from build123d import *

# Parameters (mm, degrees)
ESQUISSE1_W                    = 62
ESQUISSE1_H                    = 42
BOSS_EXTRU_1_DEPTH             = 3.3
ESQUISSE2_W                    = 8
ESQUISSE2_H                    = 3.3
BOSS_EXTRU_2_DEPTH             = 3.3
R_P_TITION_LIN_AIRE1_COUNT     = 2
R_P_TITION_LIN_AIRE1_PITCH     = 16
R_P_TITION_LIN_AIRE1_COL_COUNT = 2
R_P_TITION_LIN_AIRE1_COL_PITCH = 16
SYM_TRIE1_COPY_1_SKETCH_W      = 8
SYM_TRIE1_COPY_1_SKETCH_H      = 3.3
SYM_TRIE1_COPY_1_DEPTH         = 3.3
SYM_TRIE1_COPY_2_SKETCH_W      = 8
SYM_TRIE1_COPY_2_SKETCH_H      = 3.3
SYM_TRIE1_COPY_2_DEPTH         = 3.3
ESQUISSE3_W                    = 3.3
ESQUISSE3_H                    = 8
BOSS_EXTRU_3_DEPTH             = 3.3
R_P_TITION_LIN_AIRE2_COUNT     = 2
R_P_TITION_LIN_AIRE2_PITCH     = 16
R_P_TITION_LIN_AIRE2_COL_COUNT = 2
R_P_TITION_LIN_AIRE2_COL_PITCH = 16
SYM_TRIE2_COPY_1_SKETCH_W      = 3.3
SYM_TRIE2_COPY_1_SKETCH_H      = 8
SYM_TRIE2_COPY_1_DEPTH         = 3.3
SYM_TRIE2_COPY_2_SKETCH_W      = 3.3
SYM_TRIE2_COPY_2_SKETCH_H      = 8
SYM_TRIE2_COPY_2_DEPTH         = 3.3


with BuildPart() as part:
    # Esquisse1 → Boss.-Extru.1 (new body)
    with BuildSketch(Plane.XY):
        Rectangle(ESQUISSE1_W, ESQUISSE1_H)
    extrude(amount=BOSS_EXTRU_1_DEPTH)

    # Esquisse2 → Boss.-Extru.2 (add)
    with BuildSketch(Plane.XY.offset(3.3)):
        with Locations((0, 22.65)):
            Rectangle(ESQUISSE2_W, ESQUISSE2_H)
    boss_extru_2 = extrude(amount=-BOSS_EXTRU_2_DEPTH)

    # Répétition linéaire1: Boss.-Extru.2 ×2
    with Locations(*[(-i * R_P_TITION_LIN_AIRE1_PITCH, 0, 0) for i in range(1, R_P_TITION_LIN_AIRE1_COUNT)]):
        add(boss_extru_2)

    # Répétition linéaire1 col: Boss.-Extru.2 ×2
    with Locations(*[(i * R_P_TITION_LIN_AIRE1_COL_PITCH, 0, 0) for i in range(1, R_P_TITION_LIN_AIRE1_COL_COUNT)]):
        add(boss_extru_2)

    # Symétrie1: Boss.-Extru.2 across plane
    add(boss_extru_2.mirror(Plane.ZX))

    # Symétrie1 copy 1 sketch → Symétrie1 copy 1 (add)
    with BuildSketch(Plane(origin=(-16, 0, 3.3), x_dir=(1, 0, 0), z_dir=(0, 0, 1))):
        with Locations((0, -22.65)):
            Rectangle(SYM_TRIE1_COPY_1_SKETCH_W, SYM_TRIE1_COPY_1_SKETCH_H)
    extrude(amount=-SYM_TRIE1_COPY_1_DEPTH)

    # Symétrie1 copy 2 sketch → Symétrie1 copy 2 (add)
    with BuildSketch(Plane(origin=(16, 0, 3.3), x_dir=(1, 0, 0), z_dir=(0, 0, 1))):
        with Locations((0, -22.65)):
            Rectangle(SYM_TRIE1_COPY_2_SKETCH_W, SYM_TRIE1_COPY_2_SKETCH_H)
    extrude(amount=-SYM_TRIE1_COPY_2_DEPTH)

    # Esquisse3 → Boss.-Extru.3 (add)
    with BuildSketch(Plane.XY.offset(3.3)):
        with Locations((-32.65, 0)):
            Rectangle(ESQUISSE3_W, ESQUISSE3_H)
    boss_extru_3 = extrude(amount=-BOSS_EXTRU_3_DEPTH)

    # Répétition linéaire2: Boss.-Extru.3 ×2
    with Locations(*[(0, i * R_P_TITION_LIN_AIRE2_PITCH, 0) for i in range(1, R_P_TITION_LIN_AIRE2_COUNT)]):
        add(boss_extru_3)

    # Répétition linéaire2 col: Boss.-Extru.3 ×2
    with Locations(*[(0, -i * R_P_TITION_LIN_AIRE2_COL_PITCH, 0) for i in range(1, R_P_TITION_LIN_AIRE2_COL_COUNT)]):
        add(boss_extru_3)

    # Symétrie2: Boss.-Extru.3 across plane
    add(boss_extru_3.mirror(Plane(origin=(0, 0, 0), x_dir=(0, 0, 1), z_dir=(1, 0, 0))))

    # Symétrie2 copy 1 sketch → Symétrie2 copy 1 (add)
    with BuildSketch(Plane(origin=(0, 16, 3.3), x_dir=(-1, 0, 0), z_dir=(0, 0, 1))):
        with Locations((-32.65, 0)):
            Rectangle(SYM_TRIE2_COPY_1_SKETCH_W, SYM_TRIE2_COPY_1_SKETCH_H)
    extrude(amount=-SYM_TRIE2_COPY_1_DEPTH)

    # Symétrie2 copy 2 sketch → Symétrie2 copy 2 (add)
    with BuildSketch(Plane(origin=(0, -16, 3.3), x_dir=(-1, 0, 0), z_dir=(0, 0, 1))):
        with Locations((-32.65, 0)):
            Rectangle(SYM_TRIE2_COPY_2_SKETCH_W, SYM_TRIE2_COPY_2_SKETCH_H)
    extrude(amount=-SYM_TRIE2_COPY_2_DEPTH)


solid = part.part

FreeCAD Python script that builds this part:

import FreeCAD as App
import Part
import Sketcher
from FreeCAD import Vector

doc = App.newDocument("Part")
params = doc.addObject("Spreadsheet::Sheet", "Params")
for row, (alias, value) in enumerate([
    ("sketch1_width", "62 mm"),
    ("sketch1_height", "42 mm"),
    ("pad1_length", "3.3 mm"),
    ("sketch2_width", "8 mm"),
    ("sketch2_height", "3.3 mm"),
    ("pad2_length", "3.3 mm"),
    ("linearpattern_pitch", "16 mm"),
    ("linearpattern2_pitch", "16 mm"),
    ("sketch3_width", "8 mm"),
    ("sketch3_height", "3.3 mm"),
    ("pad3_length", "3.3 mm"),
    ("sketch4_width", "8 mm"),
    ("sketch4_height", "3.3 mm"),
    ("pad4_length", "3.3 mm"),
    ("sketch5_height", "8 mm"),
    ("sketch5_width", "3.3 mm"),
    ("pad5_length", "3.3 mm"),
    ("linearpattern3_pitch", "16 mm"),
    ("linearpattern4_pitch", "16 mm"),
    ("sketch6_height", "8 mm"),
    ("sketch6_width", "3.3 mm"),
    ("pad6_length", "3.3 mm"),
    ("sketch7_height", "8 mm"),
    ("sketch7_width", "3.3 mm"),
    ("pad7_length", "3.3 mm"),
], start=1):
    params.set(f"A{row}", alias)
    params.set(f"B{row}", "=" + value)
    params.setAlias(f"B{row}", alias)

body = doc.addObject("PartDesign::Body", "Body")

# Sketch on XY plane
sketch1 = body.newObject("Sketcher::SketchObject", "Sketch")
sketch1.AttachmentSupport = (doc.getObject("XY_Plane"), [""])
sketch1.MapMode = "FlatFace"
sketch1.addGeometry([
    Part.LineSegment(Vector(-31, 21, 0), Vector(-31, -21, 0)),
    Part.LineSegment(Vector(-31, -21, 0), Vector(31, -21, 0)),
    Part.LineSegment(Vector(31, -21, 0), Vector(31, 21, 0)),
    Part.LineSegment(Vector(31, 21, 0), Vector(-31, 21, 0)),
], False)
sketch1.addConstraint([
    Sketcher.Constraint("Coincident", 0, 2, 1, 1),
    Sketcher.Constraint("Coincident", 1, 2, 2, 1),
    Sketcher.Constraint("Coincident", 2, 2, 3, 1),
    Sketcher.Constraint("Coincident", 3, 2, 0, 1),
    Sketcher.Constraint("Vertical", 0),
    Sketcher.Constraint("Horizontal", 1),
    Sketcher.Constraint("Vertical", 2),
    Sketcher.Constraint("Horizontal", 3),
    Sketcher.Constraint("Symmetric", 0, 2, 2, 2, -1, 1),
    Sketcher.Constraint("DistanceX", 1, 1, 1, 2, 62.0),
    Sketcher.Constraint("DistanceY", 0, 2, 0, 1, 42.0),
])
sketch1.setExpression("Constraints[9]", "Params.sketch1_width")
sketch1.setExpression("Constraints[10]", "Params.sketch1_height")
pad1 = body.newObject("PartDesign::Pad", "Pad")
pad1.Profile = sketch1
pad1.setExpression("Length", "Params.pad1_length")

# Sketch on XY plane
sketch2 = body.newObject("Sketcher::SketchObject", "Sketch001")
sketch2.AttachmentSupport = (doc.getObject("XY_Plane"), [""])
sketch2.MapMode = "FlatFace"
sketch2.AttachmentOffset = App.Placement(Vector(0, 0, 3.3), App.Rotation())
sketch2.addGeometry([
    Part.LineSegment(Vector(-4, 24.3, 0), Vector(-4, 21, 0)),
    Part.LineSegment(Vector(-4, 21, 0), Vector(4, 21, 0)),
    Part.LineSegment(Vector(4, 21, 0), Vector(4, 24.3, 0)),
    Part.LineSegment(Vector(4, 24.3, 0), Vector(-4, 24.3, 0)),
], False)
sketch2.addConstraint([
    Sketcher.Constraint("Coincident", 0, 2, 1, 1),
    Sketcher.Constraint("Coincident", 1, 2, 2, 1),
    Sketcher.Constraint("Coincident", 2, 2, 3, 1),
    Sketcher.Constraint("Coincident", 3, 2, 0, 1),
    Sketcher.Constraint("Vertical", 0),
    Sketcher.Constraint("Horizontal", 1),
    Sketcher.Constraint("Vertical", 2),
    Sketcher.Constraint("Horizontal", 3),
    Sketcher.Constraint("DistanceX", 1, 1, 1, 2, 8.0),
    Sketcher.Constraint("DistanceY", 0, 2, 0, 1, 3.3),
    Sketcher.Constraint("DistanceX", 0, 2, -1, 1, 4.0),
    Sketcher.Constraint("DistanceY", -1, 1, 0, 2, 21.0),
])
sketch2.setExpression("Constraints[8]", "Params.sketch2_width")
sketch2.setExpression("Constraints[9]", "Params.sketch2_height")
pad2 = body.newObject("PartDesign::Pad", "Pad001")
pad2.Profile = sketch2
pad2.setExpression("Length", "Params.pad2_length")
pad2.Reversed = True
doc.recompute()

linearpattern = body.newObject("PartDesign::LinearPattern", "LinearPattern")
linearpattern.Originals = [pad2]
linearpattern.Direction = (doc.getObject("X_Axis"), [""])
linearpattern.Mode = "offset"
linearpattern.setExpression("Offset", "Params.linearpattern_pitch")
linearpattern.Occurrences = 2
linearpattern.Reversed = True
body.Tip = linearpattern
doc.recompute()

linearpattern2 = body.newObject("PartDesign::LinearPattern", "LinearPattern001")
linearpattern2.Originals = [pad2]
linearpattern2.Direction = (doc.getObject("X_Axis"), [""])
linearpattern2.Mode = "offset"
linearpattern2.setExpression("Offset", "Params.linearpattern2_pitch")
linearpattern2.Occurrences = 2
body.Tip = linearpattern2
doc.recompute()

mirrored = body.newObject("PartDesign::Mirrored", "Mirrored")
mirrored.Originals = [pad2]
mirrored.MirrorPlane = (doc.getObject("XZ_Plane"), [""])
body.Tip = mirrored

# Sketch on XY plane
sketch3 = body.newObject("Sketcher::SketchObject", "Sketch002")
sketch3.AttachmentSupport = (doc.getObject("XY_Plane"), [""])
sketch3.MapMode = "FlatFace"
sketch3.AttachmentOffset = App.Placement(Vector(0, 0, 3.3), App.Rotation())
sketch3.addGeometry([
    Part.LineSegment(Vector(-20, -21, 0), Vector(-20, -24.3, 0)),
    Part.LineSegment(Vector(-20, -24.3, 0), Vector(-12, -24.3, 0)),
    Part.LineSegment(Vector(-12, -24.3, 0), Vector(-12, -21, 0)),
    Part.LineSegment(Vector(-12, -21, 0), Vector(-20, -21, 0)),
], False)
sketch3.addConstraint([
    Sketcher.Constraint("Coincident", 0, 2, 1, 1),
    Sketcher.Constraint("Coincident", 1, 2, 2, 1),
    Sketcher.Constraint("Coincident", 2, 2, 3, 1),
    Sketcher.Constraint("Coincident", 3, 2, 0, 1),
    Sketcher.Constraint("Vertical", 0),
    Sketcher.Constraint("Horizontal", 1),
    Sketcher.Constraint("Vertical", 2),
    Sketcher.Constraint("Horizontal", 3),
    Sketcher.Constraint("DistanceX", 1, 1, 1, 2, 8.0),
    Sketcher.Constraint("DistanceY", 0, 2, 0, 1, 3.3),
    Sketcher.Constraint("DistanceX", 0, 2, -1, 1, 20.0),
    Sketcher.Constraint("DistanceY", 2, 2, -1, 1, 21.0),
])
sketch3.setExpression("Constraints[8]", "Params.sketch3_width")
sketch3.setExpression("Constraints[9]", "Params.sketch3_height")
pad3 = body.newObject("PartDesign::Pad", "Pad002")
pad3.Profile = sketch3
pad3.setExpression("Length", "Params.pad3_length")
pad3.Reversed = True

# Sketch on XY plane
sketch4 = body.newObject("Sketcher::SketchObject", "Sketch003")
sketch4.AttachmentSupport = (doc.getObject("XY_Plane"), [""])
sketch4.MapMode = "FlatFace"
sketch4.AttachmentOffset = App.Placement(Vector(0, 0, 3.3), App.Rotation())
sketch4.addGeometry([
    Part.LineSegment(Vector(12, -21, 0), Vector(12, -24.3, 0)),
    Part.LineSegment(Vector(12, -24.3, 0), Vector(20, -24.3, 0)),
    Part.LineSegment(Vector(20, -24.3, 0), Vector(20, -21, 0)),
    Part.LineSegment(Vector(20, -21, 0), Vector(12, -21, 0)),
], False)
sketch4.addConstraint([
    Sketcher.Constraint("Coincident", 0, 2, 1, 1),
    Sketcher.Constraint("Coincident", 1, 2, 2, 1),
    Sketcher.Constraint("Coincident", 2, 2, 3, 1),
    Sketcher.Constraint("Coincident", 3, 2, 0, 1),
    Sketcher.Constraint("Vertical", 0),
    Sketcher.Constraint("Horizontal", 1),
    Sketcher.Constraint("Vertical", 2),
    Sketcher.Constraint("Horizontal", 3),
    Sketcher.Constraint("DistanceX", 1, 1, 1, 2, 8.0),
    Sketcher.Constraint("DistanceY", 0, 2, 0, 1, 3.3),
    Sketcher.Constraint("DistanceX", -1, 1, 0, 2, 12.0),
    Sketcher.Constraint("DistanceY", 2, 2, -1, 1, 21.0),
])
sketch4.setExpression("Constraints[8]", "Params.sketch4_width")
sketch4.setExpression("Constraints[9]", "Params.sketch4_height")
pad4 = body.newObject("PartDesign::Pad", "Pad003")
pad4.Profile = sketch4
pad4.setExpression("Length", "Params.pad4_length")
pad4.Reversed = True

# Sketch on XY plane
sketch5 = body.newObject("Sketcher::SketchObject", "Sketch004")
sketch5.AttachmentSupport = (doc.getObject("XY_Plane"), [""])
sketch5.MapMode = "FlatFace"
sketch5.AttachmentOffset = App.Placement(Vector(0, 0, 3.3), App.Rotation())
sketch5.addGeometry([
    Part.LineSegment(Vector(-34.3, 4, 0), Vector(-34.3, -4, 0)),
    Part.LineSegment(Vector(-34.3, -4, 0), Vector(-31, -4, 0)),
    Part.LineSegment(Vector(-31, -4, 0), Vector(-31, 4, 0)),
    Part.LineSegment(Vector(-31, 4, 0), Vector(-34.3, 4, 0)),
], False)
sketch5.addConstraint([
    Sketcher.Constraint("Coincident", 0, 2, 1, 1),
    Sketcher.Constraint("Coincident", 1, 2, 2, 1),
    Sketcher.Constraint("Coincident", 2, 2, 3, 1),
    Sketcher.Constraint("Coincident", 3, 2, 0, 1),
    Sketcher.Constraint("Vertical", 0),
    Sketcher.Constraint("Horizontal", 1),
    Sketcher.Constraint("Vertical", 2),
    Sketcher.Constraint("Horizontal", 3),
    Sketcher.Constraint("DistanceY", 0, 2, 0, 1, 8.0),
    Sketcher.Constraint("DistanceX", 1, 1, 1, 2, 3.3),
    Sketcher.Constraint("DistanceY", 0, 2, -1, 1, 4.0),
    Sketcher.Constraint("DistanceX", 1, 2, -1, 1, 31.0),
])
sketch5.setExpression("Constraints[8]", "Params.sketch5_height")
sketch5.setExpression("Constraints[9]", "Params.sketch5_width")
pad5 = body.newObject("PartDesign::Pad", "Pad004")
pad5.Profile = sketch5
pad5.setExpression("Length", "Params.pad5_length")
pad5.Reversed = True
doc.recompute()

linearpattern3 = body.newObject("PartDesign::LinearPattern", "LinearPattern002")
linearpattern3.Originals = [pad5]
linearpattern3.Direction = (doc.getObject("Y_Axis"), [""])
linearpattern3.Mode = "offset"
linearpattern3.setExpression("Offset", "Params.linearpattern3_pitch")
linearpattern3.Occurrences = 2
body.Tip = linearpattern3
doc.recompute()

linearpattern4 = body.newObject("PartDesign::LinearPattern", "LinearPattern003")
linearpattern4.Originals = [pad5]
linearpattern4.Direction = (doc.getObject("Y_Axis"), [""])
linearpattern4.Mode = "offset"
linearpattern4.setExpression("Offset", "Params.linearpattern4_pitch")
linearpattern4.Occurrences = 2
linearpattern4.Reversed = True
body.Tip = linearpattern4
doc.recompute()

mirrored2 = body.newObject("PartDesign::Mirrored", "Mirrored001")
mirrored2.Originals = [pad5]
mirrored2.MirrorPlane = (doc.getObject("YZ_Plane"), [""])
body.Tip = mirrored2

# Sketch on XY plane
sketch6 = body.newObject("Sketcher::SketchObject", "Sketch005")
sketch6.AttachmentSupport = (doc.getObject("XY_Plane"), [""])
sketch6.MapMode = "FlatFace"
sketch6.AttachmentOffset = App.Placement(Vector(0, 0, 3.3), App.Rotation())
sketch6.addGeometry([
    Part.LineSegment(Vector(34.3, 12, 0), Vector(34.3, 20, 0)),
    Part.LineSegment(Vector(34.3, 20, 0), Vector(31, 20, 0)),
    Part.LineSegment(Vector(31, 20, 0), Vector(31, 12, 0)),
    Part.LineSegment(Vector(31, 12, 0), Vector(34.3, 12, 0)),
], False)
sketch6.addConstraint([
    Sketcher.Constraint("Coincident", 0, 2, 1, 1),
    Sketcher.Constraint("Coincident", 1, 2, 2, 1),
    Sketcher.Constraint("Coincident", 2, 2, 3, 1),
    Sketcher.Constraint("Coincident", 3, 2, 0, 1),
    Sketcher.Constraint("Vertical", 0),
    Sketcher.Constraint("Horizontal", 1),
    Sketcher.Constraint("Vertical", 2),
    Sketcher.Constraint("Horizontal", 3),
    Sketcher.Constraint("DistanceY", 0, 1, 0, 2, 8.0),
    Sketcher.Constraint("DistanceX", 1, 2, 1, 1, 3.3),
    Sketcher.Constraint("DistanceY", -1, 1, 0, 2, 20.0),
    Sketcher.Constraint("DistanceX", -1, 1, 1, 2, 31.0),
])
sketch6.setExpression("Constraints[8]", "Params.sketch6_height")
sketch6.setExpression("Constraints[9]", "Params.sketch6_width")
pad6 = body.newObject("PartDesign::Pad", "Pad005")
pad6.Profile = sketch6
pad6.setExpression("Length", "Params.pad6_length")
pad6.Reversed = True

# Sketch on XY plane
sketch7 = body.newObject("Sketcher::SketchObject", "Sketch006")
sketch7.AttachmentSupport = (doc.getObject("XY_Plane"), [""])
sketch7.MapMode = "FlatFace"
sketch7.AttachmentOffset = App.Placement(Vector(0, 0, 3.3), App.Rotation())
sketch7.addGeometry([
    Part.LineSegment(Vector(34.3, -20, 0), Vector(34.3, -12, 0)),
    Part.LineSegment(Vector(34.3, -12, 0), Vector(31, -12, 0)),
    Part.LineSegment(Vector(31, -12, 0), Vector(31, -20, 0)),
    Part.LineSegment(Vector(31, -20, 0), Vector(34.3, -20, 0)),
], False)
sketch7.addConstraint([
    Sketcher.Constraint("Coincident", 0, 2, 1, 1),
    Sketcher.Constraint("Coincident", 1, 2, 2, 1),
    Sketcher.Constraint("Coincident", 2, 2, 3, 1),
    Sketcher.Constraint("Coincident", 3, 2, 0, 1),
    Sketcher.Constraint("Vertical", 0),
    Sketcher.Constraint("Horizontal", 1),
    Sketcher.Constraint("Vertical", 2),
    Sketcher.Constraint("Horizontal", 3),
    Sketcher.Constraint("DistanceY", 0, 1, 0, 2, 8.0),
    Sketcher.Constraint("DistanceX", 1, 2, 1, 1, 3.3),
    Sketcher.Constraint("DistanceY", 0, 2, -1, 1, 12.0),
    Sketcher.Constraint("DistanceX", -1, 1, 1, 2, 31.0),
])
sketch7.setExpression("Constraints[8]", "Params.sketch7_height")
sketch7.setExpression("Constraints[9]", "Params.sketch7_width")
pad7 = body.newObject("PartDesign::Pad", "Pad006")
pad7.Profile = sketch7
pad7.setExpression("Length", "Params.pad7_length")
pad7.Reversed = True

doc.recompute()
